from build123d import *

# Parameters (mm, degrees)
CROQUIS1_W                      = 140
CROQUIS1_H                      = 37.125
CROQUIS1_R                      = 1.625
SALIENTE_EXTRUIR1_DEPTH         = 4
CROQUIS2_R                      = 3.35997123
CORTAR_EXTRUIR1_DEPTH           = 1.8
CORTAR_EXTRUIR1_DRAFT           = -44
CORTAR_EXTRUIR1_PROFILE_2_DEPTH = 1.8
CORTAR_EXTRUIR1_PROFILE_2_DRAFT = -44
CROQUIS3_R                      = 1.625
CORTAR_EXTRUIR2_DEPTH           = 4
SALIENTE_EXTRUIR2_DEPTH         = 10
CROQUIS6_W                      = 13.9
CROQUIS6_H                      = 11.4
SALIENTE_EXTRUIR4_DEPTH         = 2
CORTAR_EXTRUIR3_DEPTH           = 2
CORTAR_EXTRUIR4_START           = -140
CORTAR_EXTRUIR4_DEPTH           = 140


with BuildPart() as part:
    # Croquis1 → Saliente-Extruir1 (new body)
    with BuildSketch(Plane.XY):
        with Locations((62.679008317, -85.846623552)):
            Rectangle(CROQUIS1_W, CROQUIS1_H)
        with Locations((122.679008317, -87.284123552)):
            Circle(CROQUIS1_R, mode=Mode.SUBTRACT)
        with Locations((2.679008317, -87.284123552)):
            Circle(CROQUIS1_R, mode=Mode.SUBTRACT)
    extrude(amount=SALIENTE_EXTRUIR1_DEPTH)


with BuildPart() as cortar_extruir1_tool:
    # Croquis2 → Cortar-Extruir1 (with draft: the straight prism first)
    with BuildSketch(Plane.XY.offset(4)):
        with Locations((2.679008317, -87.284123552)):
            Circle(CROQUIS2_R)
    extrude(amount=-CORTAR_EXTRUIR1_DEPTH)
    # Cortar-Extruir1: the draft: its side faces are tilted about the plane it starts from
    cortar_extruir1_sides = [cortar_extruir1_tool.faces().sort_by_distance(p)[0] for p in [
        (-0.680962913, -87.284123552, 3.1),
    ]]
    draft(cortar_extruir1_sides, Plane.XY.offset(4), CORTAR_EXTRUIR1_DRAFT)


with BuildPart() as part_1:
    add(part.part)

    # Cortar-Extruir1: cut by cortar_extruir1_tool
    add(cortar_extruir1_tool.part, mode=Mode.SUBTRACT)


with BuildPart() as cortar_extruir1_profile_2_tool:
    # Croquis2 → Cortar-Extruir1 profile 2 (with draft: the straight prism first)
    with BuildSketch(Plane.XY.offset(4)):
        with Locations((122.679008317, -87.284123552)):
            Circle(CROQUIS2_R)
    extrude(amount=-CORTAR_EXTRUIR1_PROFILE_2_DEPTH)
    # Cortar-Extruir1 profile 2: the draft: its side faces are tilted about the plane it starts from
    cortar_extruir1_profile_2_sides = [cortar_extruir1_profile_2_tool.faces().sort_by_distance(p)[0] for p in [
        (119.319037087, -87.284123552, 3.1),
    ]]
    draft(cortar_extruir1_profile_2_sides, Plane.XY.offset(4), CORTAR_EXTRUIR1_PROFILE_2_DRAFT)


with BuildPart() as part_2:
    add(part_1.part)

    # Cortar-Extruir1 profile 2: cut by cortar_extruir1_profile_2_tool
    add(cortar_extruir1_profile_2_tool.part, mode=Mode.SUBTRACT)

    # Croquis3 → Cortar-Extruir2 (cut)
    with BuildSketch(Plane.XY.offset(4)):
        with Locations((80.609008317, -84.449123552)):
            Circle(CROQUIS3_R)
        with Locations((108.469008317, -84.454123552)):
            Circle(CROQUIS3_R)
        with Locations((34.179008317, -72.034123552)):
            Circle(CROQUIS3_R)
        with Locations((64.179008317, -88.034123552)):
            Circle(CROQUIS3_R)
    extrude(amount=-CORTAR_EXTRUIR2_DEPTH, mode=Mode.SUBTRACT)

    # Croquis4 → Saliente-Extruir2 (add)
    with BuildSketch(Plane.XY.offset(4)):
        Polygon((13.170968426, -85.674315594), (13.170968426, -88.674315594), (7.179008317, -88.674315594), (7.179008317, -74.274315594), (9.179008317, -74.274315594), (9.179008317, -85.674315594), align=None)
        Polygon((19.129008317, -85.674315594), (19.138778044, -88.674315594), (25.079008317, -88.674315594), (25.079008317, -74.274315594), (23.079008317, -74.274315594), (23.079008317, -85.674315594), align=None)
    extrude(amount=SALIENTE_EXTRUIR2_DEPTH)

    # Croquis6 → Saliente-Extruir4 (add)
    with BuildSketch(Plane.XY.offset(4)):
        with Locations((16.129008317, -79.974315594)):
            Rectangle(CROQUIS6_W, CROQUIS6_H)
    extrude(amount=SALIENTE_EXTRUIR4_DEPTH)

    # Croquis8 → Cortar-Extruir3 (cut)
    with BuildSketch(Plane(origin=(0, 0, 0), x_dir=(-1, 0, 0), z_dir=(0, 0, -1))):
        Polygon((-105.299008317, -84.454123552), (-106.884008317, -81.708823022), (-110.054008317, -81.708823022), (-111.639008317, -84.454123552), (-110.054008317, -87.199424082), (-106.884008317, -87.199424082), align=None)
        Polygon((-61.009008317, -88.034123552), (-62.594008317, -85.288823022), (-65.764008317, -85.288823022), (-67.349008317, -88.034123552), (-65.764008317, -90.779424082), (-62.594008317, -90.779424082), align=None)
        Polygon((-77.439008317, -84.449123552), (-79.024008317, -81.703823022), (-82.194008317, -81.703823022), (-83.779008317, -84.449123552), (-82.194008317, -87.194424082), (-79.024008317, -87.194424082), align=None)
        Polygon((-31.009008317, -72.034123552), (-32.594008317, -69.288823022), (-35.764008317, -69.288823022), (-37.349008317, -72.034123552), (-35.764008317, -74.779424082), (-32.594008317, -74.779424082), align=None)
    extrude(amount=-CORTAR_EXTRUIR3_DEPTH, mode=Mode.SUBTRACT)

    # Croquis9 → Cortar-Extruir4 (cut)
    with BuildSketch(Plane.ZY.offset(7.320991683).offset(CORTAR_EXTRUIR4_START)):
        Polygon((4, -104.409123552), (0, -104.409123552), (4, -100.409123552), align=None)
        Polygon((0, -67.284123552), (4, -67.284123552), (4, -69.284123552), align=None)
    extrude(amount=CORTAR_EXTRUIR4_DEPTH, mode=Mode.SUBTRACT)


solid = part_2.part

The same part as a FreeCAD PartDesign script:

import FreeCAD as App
import Part
import Sketcher

V = App.Vector
Q = App.Units.Quantity


def faces_at(feature, points):
    """Names of the faces that lie closest to the given points."""
    faces = feature.Shape.Faces
    near = lambda p: min(range(len(faces)), key=lambda i: faces[i].distToShape(Part.Vertex(*p))[0])
    return sorted({f"Face{near(p) + 1}" for p in points})


def add_polygon(sketch, points):
    """Adds a closed chain of lines whose ends are joined by coincident constraints."""
    first, n = sketch.GeometryCount, len(points)
    for a, b in zip(points, points[1:] + points[:1]):
        sketch.addGeometry(Part.LineSegment(App.Vector(*a, 0), App.Vector(*b, 0)), False)
    for i in range(n):
        sketch.addConstraint(Sketcher.Constraint("Coincident", first + i, 2, first + (i + 1) % n, 1))

doc = App.newDocument("Part")
params = doc.addObject("Spreadsheet::Sheet", "Params")
for row, (alias, value) in enumerate([
    ("sketch1_diameter", "3.25 mm"),
    ("sketch1_width", "140 mm"),
    ("pad1_length", "4 mm"),
    ("pad2_length", "1.8 mm"),
    ("draft_angle", "44 deg"),
    ("pad3_length", "1.8 mm"),
    ("draft2_angle", "44 deg"),
    ("sketch4_diameter", "3.25 mm"),
    ("pocket1_length", "4 mm"),
    ("sketch5_width", "2 mm"),
    ("sketch5_height", "3 mm"),
    ("sketch5_height2", "11.4 mm"),
    ("sketch5_width2", "3.95 mm"),
    ("pad4_length", "10 mm"),
    ("sketch6_width", "13.9 mm"),
    ("sketch6_height", "11.4 mm"),
    ("pad5_length", "2 mm"),
    ("sketch7_width", "3.17 mm"),
    ("sketch7_length", "3.17 mm"),
    ("pocket2_length", "2 mm"),
    ("sketch8_width", "4 mm"),
    ("sketch8_width2", "2 mm"),
    ("pocket3_length", "140 mm"),
], start=1):
    params.set(f"A{row}", alias)
    params.set(f"B{row}", "=" + value)
    params.setAlias(f"B{row}", alias)

body = doc.addObject("PartDesign::Body", "Body")

# Sketch on XY plane
sketch1 = body.newObject("Sketcher::SketchObject", "Sketch")
sketch1.AttachmentSupport = (doc.getObject("XY_Plane"), [""])
sketch1.MapMode = "FlatFace"
add_polygon(sketch1, [(-7.3, -67.3), (-7.3, -104.4), (132.7, -104.4), (132.7, -67.3)])  # lines 0-3
sketch1.addGeometry(Part.Circle(V(2.7, -87.3, 0), V(0, 0, 1), 1.6), False)  # 4
sketch1.addGeometry(Part.Circle(V(122.7, -87.3, 0), V(0, 0, 1), 1.6), False)  # 5
sketch1.addConstraint([
    Sketcher.Constraint("Vertical", 0),
    Sketcher.Constraint("Horizontal", 1),
    Sketcher.Constraint("Vertical", 2),
    Sketcher.Constraint("Horizontal", 3),
    Sketcher.Constraint("Equal", 4, 5),
    Sketcher.Constraint("Horizontal", 4, 3, 5, 3),
    Sketcher.Constraint("Diameter", 4, Q("3.25 mm")),
    Sketcher.Constraint("DistanceX", 1, 1, 1, 2, Q("140 mm")),
    Sketcher.Constraint("DistanceX", 4, 3, 5, 3, Q("120 mm")),
    Sketcher.Constraint("DistanceX", 0, 2, 4, 3, Q("10 mm")),
    Sketcher.Constraint("DistanceY", 5, 3, 2, 2, Q("20 mm")),
    Sketcher.Constraint("DistanceY", 0, 2, 0, 1, Q("37.125 mm")),
    Sketcher.Constraint("DistanceX", -1, 1, 4, 3, Q("2.679008 mm")),
    Sketcher.Constraint("DistanceY", 4, 3, -1, 1, Q("87.284124 mm")),
])
sketch1.setExpression("Constraints[10]", "Params.sketch1_diameter")
sketch1.setExpression("Constraints[11]", "Params.sketch1_width")
pad1 = body.newObject("PartDesign::Pad", "Pad")
pad1.Profile = sketch1
pad1.setExpression("Length", "Params.pad1_length")
body2 = doc.addObject("PartDesign::Body", "Body001")

# Sketch on XY plane
sketch2 = body2.newObject("Sketcher::SketchObject", "Sketch001")
sketch2.AttachmentSupport = (doc.getObject("XY_Plane001"), [""])
sketch2.MapMode = "FlatFace"
sketch2.AttachmentOffset = App.Placement(V(0, 0, 4), App.Rotation())
sketch2.addGeometry(Part.Circle(V(2.7, -87.3, 0), V(0, 0, 1), 3.4), False)
sketch2.addConstraint([
    Sketcher.Constraint("Diameter", 0, Q("6.719942 mm")),
    Sketcher.Constraint("DistanceX", -1, 1, 0, 3, Q("2.679008 mm")),
    Sketcher.Constraint("DistanceY", 0, 3, -1, 1, Q("87.284124 mm")),
])
pad2 = body2.newObject("PartDesign::Pad", "Pad001")
pad2.Profile = sketch2
pad2.setExpression("Length", "Params.pad2_length")
pad2.Reversed = True
doc.recompute()

datumplane = body2.newObject("PartDesign::Plane", "DatumPlane")
datumplane.AttachmentSupport = (doc.getObject("XY_Plane001"), [""])
datumplane.MapMode = "FlatFace"
datumplane.AttachmentOffset = App.Placement(V(0, 0, 4), App.Rotation())
draft = body2.newObject("PartDesign::Draft", "Draft")
draft.Base = (pad2, faces_at(pad2, [(-0.681, -87.284, 3.1)]))
draft.NeutralPlane = (datumplane, [""])
draft.setExpression("Angle", "Params.draft_angle")
draft.Reversed = True
doc.recompute()

boolean = body.newObject("PartDesign::Boolean", "Boolean")
boolean.Type = "Cut"
boolean.addObjects([body2])
body3 = doc.addObject("PartDesign::Body", "Body002")

# Sketch on XY plane
sketch3 = body3.newObject("Sketcher::SketchObject", "Sketch002")
sketch3.AttachmentSupport = (doc.getObject("XY_Plane002"), [""])
sketch3.MapMode = "FlatFace"
sketch3.AttachmentOffset = App.Placement(V(0, 0, 4), App.Rotation())
sketch3.addGeometry(Part.Circle(V(122.7, -87.3, 0), V(0, 0, 1), 3.4), False)
sketch3.addConstraint([
    Sketcher.Constraint("Diameter", 0, Q("6.719942 mm")),
    Sketcher.Constraint("DistanceX", -1, 1, 0, 3, Q("122.679008 mm")),
    Sketcher.Constraint("DistanceY", 0, 3, -1, 1, Q("87.284124 mm")),
])
pad3 = body3.newObject("PartDesign::Pad", "Pad002")
pad3.Profile = sketch3
pad3.setExpression("Length", "Params.pad3_length")
pad3.Reversed = True
doc.recompute()

datumplane2 = body3.newObject("PartDesign::Plane", "DatumPlane001")
datumplane2.AttachmentSupport = (doc.getObject("XY_Plane002"), [""])
datumplane2.MapMode = "FlatFace"
datumplane2.AttachmentOffset = App.Placement(V(0, 0, 4), App.Rotation())
draft2 = body3.newObject("PartDesign::Draft", "Draft001")
draft2.Base = (pad3, faces_at(pad3, [(119.319, -87.284, 3.1)]))
draft2.NeutralPlane = (datumplane2, [""])
draft2.setExpression("Angle", "Params.draft2_angle")
draft2.Reversed = True
doc.recompute()

boolean2 = body.newObject("PartDesign::Boolean", "Boolean001")
boolean2.Type = "Cut"
boolean2.addObjects([body3])

# Sketch on XY plane
sketch4 = body.newObject("Sketcher::SketchObject", "Sketch003")
sketch4.AttachmentSupport = (doc.getObject("XY_Plane"), [""])
sketch4.MapMode = "FlatFace"
sketch4.AttachmentOffset = App.Placement(V(0, 0, 4), App.Rotation())
sketch4.addGeometry([
    Part.Circle(V(80.6, -84.4, 0), V(0, 0, 1), 1.6),
    Part.Circle(V(108.5, -84.5, 0), V(0, 0, 1), 1.6),
    Part.Circle(V(34.2, -72, 0), V(0, 0, 1), 1.6),
    Part.Circle(V(64.2, -88, 0), V(0, 0, 1), 1.6),
], False)
sketch4.addConstraint([
    Sketcher.Constraint("Equal", 0, 1),
    Sketcher.Constraint("Equal", 1, 2),
    Sketcher.Constraint("Equal", 2, 3),
    Sketcher.Constraint("Diameter", 0, Q("3.25 mm")),
    Sketcher.Constraint("DistanceX", 2, 3, 3, 3, Q("30 mm")),
    Sketcher.Constraint("DistanceY", 3, 3, 2, 3, Q("16 mm")),
    Sketcher.Constraint("DistanceX", 0, 3, 1, 3, Q("27.86 mm")),
    Sketcher.Constraint("DistanceX", 2, 3, 0, 3, Q("46.43 mm")),
    Sketcher.Constraint("DistanceY", 1, 3, 2, 3, Q("12.42 mm")),
    Sketcher.Constraint("DistanceY", 1, 3, 0, 3, Q("0.005 mm")),
    Sketcher.Constraint("DistanceX", -1, 1, 0, 3, Q("80.609008 mm")),
    Sketcher.Constraint("DistanceY", 0, 3, -1, 1, Q("84.449124 mm")),
])
sketch4.setExpression("Constraints[3]", "Params.sketch4_diameter")
pocket1 = body.newObject("PartDesign::Pocket", "Pocket")
pocket1.Profile = sketch4
pocket1.setExpression("Length", "Params.pocket1_length")

# Sketch on XY plane
sketch5 = body.newObject("Sketcher::SketchObject", "Sketch004")
sketch5.AttachmentSupport = (doc.getObject("XY_Plane"), [""])
sketch5.MapMode = "FlatFace"
sketch5.AttachmentOffset = App.Placement(V(0, 0, 4), App.Rotation())
add_polygon(sketch5, [(13.2, -88.7), (13.2, -85.7), (9.2, -85.7), (9.2, -74.3), (7.2, -74.3), (7.2, -88.7)])  # lines 0-5
add_polygon(sketch5, [(19.1, -85.7), (19.1, -88.7), (25.1, -88.7), (25.1, -74.3), (23.1, -74.3), (23.1, -85.7)])  # lines 6-11
sketch5.addConstraint([
    Sketcher.Constraint("Vertical", 0),
    Sketcher.Constraint("Horizontal", 1),
    Sketcher.Constraint("Vertical", 2),
    Sketcher.Constraint("Horizontal", 3),
    Sketcher.Constraint("Vertical", 4),
    Sketcher.Constraint("Horizontal", 5),
    Sketcher.Constraint("Horizontal", 7),
    Sketcher.Constraint("Vertical", 8),
    Sketcher.Constraint("Horizontal", 9),
    Sketcher.Constraint("Vertical", 10),
    Sketcher.Constraint("Horizontal", 11),
    Sketcher.Constraint("Horizontal", 5, 2, 6, 2),
    Sketcher.Constraint("Horizontal", 3, 2, 8, 2),
    Sketcher.Constraint("Horizontal", 1, 2, 10, 2),
    Sketcher.Constraint("Equal", 3, 9),
    Sketcher.Constraint("DistanceX", 3, 2, 3, 1, Q("2 mm")),
    Sketcher.Constraint("DistanceY", 0, 1, 0, 2, Q("3 mm")),
    Sketcher.Constraint("DistanceY", 2, 1, 2, 2, Q("11.4 mm")),
    Sketcher.Constraint("DistanceX", 11, 2, 11, 1, Q("3.95 mm")),
    Sketcher.Constraint("DistanceX", 1, 2, 7, 2, Q("15.9 mm")),
    Sketcher.Constraint("DistanceX", 1, 2, 1, 1, Q("3.99196 mm")),
    Sketcher.Constraint("DistanceX", 7, 1, 7, 2, Q("5.94023 mm")),
    Sketcher.Constraint("DistanceX", -1, 1, 0, 2, Q("13.170968 mm")),
    Sketcher.Constraint("DistanceY", 0, 2, -1, 1, Q("85.674316 mm")),
])
sketch5.setExpression("Constraints[27]", "Params.sketch5_width")
sketch5.setExpression("Constraints[28]", "Params.sketch5_height")
sketch5.setExpression("Constraints[29]", "Params.sketch5_height2")
sketch5.setExpression("Constraints[30]", "Params.sketch5_width2")
pad4 = body.newObject("PartDesign::Pad", "Pad003")
pad4.Profile = sketch5
pad4.setExpression("Length", "Params.pad4_length")

# Sketch on XY plane
sketch6 = body.newObject("Sketcher::SketchObject", "Sketch005")
sketch6.AttachmentSupport = (doc.getObject("XY_Plane"), [""])
sketch6.MapMode = "FlatFace"
sketch6.AttachmentOffset = App.Placement(V(0, 0, 4), App.Rotation())
add_polygon(sketch6, [(9, -74), (9, -86), (23, -86), (23, -74)])  # lines 0-3
sketch6.addConstraint([
    Sketcher.Constraint("Vertical", 0),
    Sketcher.Constraint("Horizontal", 1),
    Sketcher.Constraint("Vertical", 2),
    Sketcher.Constraint("Horizontal", 3),
    Sketcher.Constraint("DistanceX", 1, 1, 1, 2, Q("13.9 mm")),
    Sketcher.Constraint("DistanceY", 0, 2, 0, 1, Q("11.4 mm")),
    Sketcher.Constraint("DistanceX", -1, 1, 0, 2, Q("9.179008 mm")),
    Sketcher.Constraint("DistanceY", 0, 2, -1, 1, Q("85.674316 mm")),
])
sketch6.setExpression("Constraints[8]", "Params.sketch6_width")
sketch6.setExpression("Constraints[9]", "Params.sketch6_height")
pad5 = body.newObject("PartDesign::Pad", "Pad004")
pad5.Profile = sketch6
pad5.setExpression("Length", "Params.pad5_length")

# Sketch on XY plane
sketch7 = body.newObject("Sketcher::SketchObject", "Sketch006")
sketch7.AttachmentSupport = (doc.getObject("XY_Plane"), [""])
sketch7.MapMode = "FlatFace"
add_polygon(sketch7, [(105.3, -84.5), (106.9, -81.7), (110.1, -81.7), (111.6, -84.5), (110.1, -87.2), (106.9, -87.2)])  # lines 0-5
add_polygon(sketch7, [(61, -88), (62.6, -85.3), (65.8, -85.3), (67.3, -88), (65.8, -90.8), (62.6, -90.8)])  # lines 6-11
add_polygon(sketch7, [(77.4, -84.4), (79, -81.7), (82.2, -81.7), (83.8, -84.4), (82.2, -87.2), (79, -87.2)])  # lines 12-17
add_polygon(sketch7, [(31, -72), (32.6, -69.3), (35.8, -69.3), (37.3, -72), (35.8, -74.8), (32.6, -74.8)])  # lines 18-23
sketch7.addConstraint([
    Sketcher.Constraint("Horizontal", 1),
    Sketcher.Constraint("Horizontal", 4),
    Sketcher.Constraint("Horizontal", 7),
    Sketcher.Constraint("Horizontal", 10),
    Sketcher.Constraint("Horizontal", 13),
    Sketcher.Constraint("Horizontal", 16),
    Sketcher.Constraint("Horizontal", 19),
    Sketcher.Constraint("Horizontal", 22),
    Sketcher.Constraint("Parallel", 0, 3),
    Sketcher.Constraint("Parallel", 2, 5),
    Sketcher.Constraint("Parallel", 3, 6),
    Sketcher.Constraint("Parallel", 5, 8),
    Sketcher.Constraint("Parallel", 6, 9),
    Sketcher.Constraint("Parallel", 8, 11),
    Sketcher.Constraint("Parallel", 9, 12),
    Sketcher.Constraint("Parallel", 11, 14),
    Sketcher.Constraint("Parallel", 12, 15),
    Sketcher.Constraint("Parallel", 14, 17),
    Sketcher.Constraint("Parallel", 15, 18),
    Sketcher.Constraint("Parallel", 17, 20),
    Sketcher.Constraint("Parallel", 18, 21),
    Sketcher.Constraint("Parallel", 20, 23),
    Sketcher.Constraint("Horizontal", 2, 2, 5, 2),
    Sketcher.Constraint("Horizontal", 8, 2, 11, 2),
    Sketcher.Constraint("Horizontal", 14, 2, 17, 2),
    Sketcher.Constraint("Horizontal", 20, 2, 23, 2),
    Sketcher.Constraint("Vertical", 1, 2, 3, 2),
    Sketcher.Constraint("Vertical", 0, 2, 4, 2),
    Sketcher.Constraint("Vertical", 7, 2, 9, 2),
    Sketcher.Constraint("Vertical", 13, 2, 15, 2),
    Sketcher.Constraint("Vertical", 19, 2, 21, 2),
    Sketcher.Constraint("Equal", 4, 7),
    Sketcher.Constraint("Equal", 10, 13),
    Sketcher.Constraint("Equal", 16, 19),
    Sketcher.Constraint("Equal", 5, 6),
    Sketcher.Constraint("Equal", 11, 12),
    Sketcher.Constraint("Equal", 17, 18),
    Sketcher.Constraint("Angle", 0, Q("60 deg")),
    Sketcher.Constraint("DistanceX", 18, 2, 6, 2, Q("30 mm")),
    Sketcher.Constraint("DistanceY", 6, 2, 18, 2, Q("16 mm")),
    Sketcher.Constraint("DistanceX", 1, 1, 1, 2, Q("3.17 mm")),
    Sketcher.Constraint("DistanceX", 6, 2, 13, 2, Q("19.6 mm")),
    Sketcher.Constraint("Distance", 0, Q("3.17 mm")),
    Sketcher.Constraint("DistanceX", 6, 2, 4, 2, Q("44.29 mm")),
    Sketcher.Constraint("DistanceY", 6, 2, 0, 2, Q("3.58 mm")),
    Sketcher.Constraint("DistanceY", 7, 2, 12, 2, Q("3.585 mm")),
    Sketcher.Constraint("DistanceX", -1, 1, 0, 2, Q("106.884008 mm")),
    Sketcher.Constraint("DistanceY", 0, 2, -1, 1, Q("81.708823 mm")),
])
sketch7.setExpression("Constraints[64]", "Params.sketch7_width")
sketch7.setExpression("Constraints[66]", "Params.sketch7_length")
pocket2 = body.newObject("PartDesign::Pocket", "Pocket001")
pocket2.Profile = sketch7
pocket2.setExpression("Length", "Params.pocket2_length")
pocket2.Reversed = True

# Sketch on YZ plane
sketch8 = body.newObject("Sketcher::SketchObject", "Sketch007")
sketch8.AttachmentSupport = (doc.getObject("YZ_Plane"), [""])
sketch8.MapMode = "FlatFace"
sketch8.AttachmentOffset = App.Placement(V(0, 0, 132.679008), App.Rotation())
add_polygon(sketch8, [(-104.4, 0), (-104.4, 4), (-100.4, 4)])  # lines 0-2
add_polygon(sketch8, [(-67.3, 4), (-67.3, 0), (-69.3, 4)])  # lines 3-5
sketch8.addConstraint([
    Sketcher.Constraint("Vertical", 0),
    Sketcher.Constraint("Horizontal", 1),
    Sketcher.Constraint("Vertical", 3),
    Sketcher.Constraint("Horizontal", 5),
    Sketcher.Constraint("PointOnObject", 2, 2, -1),
    Sketcher.Constraint("PointOnObject", 3, 2, -1),
    Sketcher.Constraint("Horizontal", 1, 2, 4, 2),
    Sketcher.Constraint("Equal", 1, 0),
    Sketcher.Constraint("DistanceX", 1, 1, 1, 2, Q("4 mm")),
    Sketcher.Constraint("DistanceX", 5, 1, 5, 2, Q("2 mm")),
    Sketcher.Constraint("DistanceX", 1, 2, 3, 2, Q("33.125 mm")),
    Sketcher.Constraint("DistanceX", 0, 2, -1, 1, Q("104.409124 mm")),
])
sketch8.setExpression("Constraints[14]", "Params.sketch8_width")
sketch8.setExpression("Constraints[15]", "Params.sketch8_width2")
pocket3 = body.newObject("PartDesign::Pocket", "Pocket002")
pocket3.Profile = sketch8
pocket3.setExpression("Length", "Params.pocket3_length")

doc.recompute()
